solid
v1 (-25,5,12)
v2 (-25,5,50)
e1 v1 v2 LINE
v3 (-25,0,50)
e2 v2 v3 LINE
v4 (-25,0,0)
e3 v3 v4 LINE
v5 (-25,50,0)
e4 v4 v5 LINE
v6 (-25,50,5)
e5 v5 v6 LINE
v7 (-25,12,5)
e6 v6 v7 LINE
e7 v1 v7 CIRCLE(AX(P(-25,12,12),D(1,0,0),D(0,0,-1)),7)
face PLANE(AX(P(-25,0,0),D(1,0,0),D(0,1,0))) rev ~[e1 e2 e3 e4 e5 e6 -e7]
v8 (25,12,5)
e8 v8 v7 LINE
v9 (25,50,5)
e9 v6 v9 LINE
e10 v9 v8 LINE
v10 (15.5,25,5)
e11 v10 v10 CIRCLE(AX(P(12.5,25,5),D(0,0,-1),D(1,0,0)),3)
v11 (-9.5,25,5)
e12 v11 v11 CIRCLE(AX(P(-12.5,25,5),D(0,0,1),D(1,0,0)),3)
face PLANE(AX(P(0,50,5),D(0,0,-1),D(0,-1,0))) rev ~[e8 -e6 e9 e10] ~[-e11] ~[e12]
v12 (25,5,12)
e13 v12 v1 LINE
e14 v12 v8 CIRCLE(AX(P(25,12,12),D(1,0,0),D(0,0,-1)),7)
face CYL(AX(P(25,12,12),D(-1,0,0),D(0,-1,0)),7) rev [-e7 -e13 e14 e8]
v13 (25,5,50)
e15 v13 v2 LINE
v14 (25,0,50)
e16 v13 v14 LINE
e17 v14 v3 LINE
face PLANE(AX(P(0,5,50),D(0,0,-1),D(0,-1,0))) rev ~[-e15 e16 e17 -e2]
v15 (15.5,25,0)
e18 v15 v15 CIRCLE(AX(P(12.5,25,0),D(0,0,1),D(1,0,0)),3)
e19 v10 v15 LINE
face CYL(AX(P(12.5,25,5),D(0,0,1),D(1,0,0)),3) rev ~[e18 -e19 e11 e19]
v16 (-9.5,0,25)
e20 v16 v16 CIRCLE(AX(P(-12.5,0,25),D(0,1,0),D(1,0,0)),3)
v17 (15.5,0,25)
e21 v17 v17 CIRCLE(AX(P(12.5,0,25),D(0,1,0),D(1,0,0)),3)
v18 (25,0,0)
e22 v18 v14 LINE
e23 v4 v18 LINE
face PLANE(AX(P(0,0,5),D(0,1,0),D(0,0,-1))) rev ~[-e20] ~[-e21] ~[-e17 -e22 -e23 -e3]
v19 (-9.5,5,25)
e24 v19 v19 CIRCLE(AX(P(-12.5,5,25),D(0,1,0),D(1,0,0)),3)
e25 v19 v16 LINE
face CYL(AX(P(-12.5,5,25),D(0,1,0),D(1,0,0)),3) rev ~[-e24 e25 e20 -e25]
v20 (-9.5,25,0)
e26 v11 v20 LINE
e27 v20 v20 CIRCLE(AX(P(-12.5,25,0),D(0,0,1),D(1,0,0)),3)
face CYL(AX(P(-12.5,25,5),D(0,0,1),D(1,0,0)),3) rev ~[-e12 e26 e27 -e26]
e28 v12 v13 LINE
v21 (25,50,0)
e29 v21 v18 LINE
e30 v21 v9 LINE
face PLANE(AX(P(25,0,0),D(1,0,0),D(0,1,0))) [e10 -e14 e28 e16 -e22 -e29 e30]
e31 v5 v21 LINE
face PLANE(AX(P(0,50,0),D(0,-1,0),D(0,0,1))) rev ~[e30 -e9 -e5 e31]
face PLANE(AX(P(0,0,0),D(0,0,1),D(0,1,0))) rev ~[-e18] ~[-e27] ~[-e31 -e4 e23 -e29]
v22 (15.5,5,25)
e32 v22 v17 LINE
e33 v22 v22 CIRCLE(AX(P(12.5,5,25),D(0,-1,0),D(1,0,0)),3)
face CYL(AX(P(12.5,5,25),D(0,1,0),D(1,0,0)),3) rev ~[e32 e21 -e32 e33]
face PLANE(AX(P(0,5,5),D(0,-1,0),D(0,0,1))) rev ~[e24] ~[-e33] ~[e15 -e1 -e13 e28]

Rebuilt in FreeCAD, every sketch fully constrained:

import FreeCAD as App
import Part
import Sketcher
from FreeCAD import Vector
Q = App.Units.Quantity


def edges_at(feature, points):
    """Names of the edges that pass closest to the given points."""
    edges = feature.Shape.Edges
    near = lambda p: min(range(len(edges)), key=lambda i: edges[i].distToShape(Part.Vertex(*p))[0])
    return sorted({f"Edge{near(p) + 1}" for p in points})


def add_polygon(sketch, points):
    """Adds a closed chain of lines whose ends are joined by coincident constraints."""
    first, n = sketch.GeometryCount, len(points)
    for a, b in zip(points, points[1:] + points[:1]):
        sketch.addGeometry(Part.LineSegment(App.Vector(*a, 0), App.Vector(*b, 0)), False)
    for i in range(n):
        sketch.addConstraint(Sketcher.Constraint("Coincident", first + i, 2, first + (i + 1) % n, 1))

doc = App.newDocument("Part")
body = doc.addObject("PartDesign::Body", "Body")

sketch1 = body.newObject("Sketcher::SketchObject", "Sketch")
sketch1.AttachmentSupport = (doc.getObject("YZ_Plane"), [""])
sketch1.MapMode = "FlatFace"
add_polygon(sketch1, [(0, 0), (50, 0), (50, 5), (5, 5), (5, 50), (0, 50)])
sketch1.addConstraint(Sketcher.Constraint("Horizontal", 0))
sketch1.addConstraint(Sketcher.Constraint("Vertical", 1))
sketch1.addConstraint(Sketcher.Constraint("Horizontal", 2))
sketch1.addConstraint(Sketcher.Constraint("Vertical", 3))
sketch1.addConstraint(Sketcher.Constraint("Horizontal", 4))
sketch1.addConstraint(Sketcher.Constraint("Vertical", 5))
sketch1.addConstraint(Sketcher.Constraint("Coincident", 5, 2, -1, 1))
sketch1.addConstraint(Sketcher.Constraint("Equal", 4, 1))
sketch1.addConstraint(Sketcher.Constraint("Equal", 2, 3))
sketch1.addConstraint(Sketcher.Constraint("DistanceX", 0, 1, 0, 2, Q("50 mm")))
sketch1.addConstraint(Sketcher.Constraint("DistanceX", 4, 2, 4, 1, Q("5 mm")))
pad1 = body.newObject("PartDesign::Pad", "Pad")
pad1.Profile = sketch1
pad1.Length = 50
pad1.Midplane = True
doc.recompute()

fillet = body.newObject("PartDesign::Fillet", "Fillet")
fillet.Base = (pad1, edges_at(pad1, [(0, 5, 5)]))
fillet.Radius = 7

sketch2 = body.newObject("Sketcher::SketchObject", "Sketch001")
sketch2.AttachmentSupport = (doc.getObject("XY_Plane"), [""])
sketch2.MapMode = "FlatFace"
sketch2.AttachmentOffset = App.Placement(Vector(0, 0, 5), App.Rotation())
sketch2.addGeometry(Part.Circle(Vector(12.5, 25, 0), Vector(0, 0, 1), 3), False)
sketch2.addGeometry(Part.Circle(Vector(-12.5, 25, 0), Vector(0, 0, 1), 3), False)
sketch2.addConstraint(Sketcher.Constraint("Equal", 0, 1))
sketch2.addConstraint(Sketcher.Constraint("Symmetric", 0, 3, 1, 3, -2))
sketch2.addConstraint(Sketcher.Constraint("Diameter", 0, Q("6 mm")))
sketch2.addConstraint(Sketcher.Constraint("DistanceY", -1, 1, 0, 3, Q("25 mm")))
sketch2.addConstraint(Sketcher.Constraint("DistanceX", 1, 3, 0, 3, Q("25 mm")))
pocket1 = body.newObject("PartDesign::Pocket", "Pocket")
pocket1.Profile = sketch2
pocket1.Length = 50

sketch3 = body.newObject("Sketcher::SketchObject", "Sketch002")
sketch3.AttachmentSupport = (doc.getObject("XZ_Plane"), [""])
sketch3.MapMode = "FlatFace"
sketch3.AttachmentOffset = App.Placement(Vector(0, 0, -5), App.Rotation())
sketch3.addGeometry(Part.Circle(Vector(12.5, 25, 0), Vector(0, 0, 1), 3), False)
sketch3.addGeometry(Part.Circle(Vector(-12.5, 25, 0), Vector(0, 0, 1), 3), False)
sketch3.addConstraint(Sketcher.Constraint("Equal", 0, 1))
sketch3.addConstraint(Sketcher.Constraint("Symmetric", 0, 3, 1, 3, -2))
sketch3.addConstraint(Sketcher.Constraint("Diameter", 0, Q("6 mm")))
sketch3.addConstraint(Sketcher.Constraint("DistanceY", -1, 1, 0, 3, Q("25 mm")))
sketch3.addConstraint(Sketcher.Constraint("DistanceX", 1, 3, 0, 3, Q("25 mm")))
pocket2 = body.newObject("PartDesign::Pocket", "Pocket001")
pocket2.Profile = sketch3
pocket2.Length = 50
pocket2.Reversed = True

doc.recompute()
